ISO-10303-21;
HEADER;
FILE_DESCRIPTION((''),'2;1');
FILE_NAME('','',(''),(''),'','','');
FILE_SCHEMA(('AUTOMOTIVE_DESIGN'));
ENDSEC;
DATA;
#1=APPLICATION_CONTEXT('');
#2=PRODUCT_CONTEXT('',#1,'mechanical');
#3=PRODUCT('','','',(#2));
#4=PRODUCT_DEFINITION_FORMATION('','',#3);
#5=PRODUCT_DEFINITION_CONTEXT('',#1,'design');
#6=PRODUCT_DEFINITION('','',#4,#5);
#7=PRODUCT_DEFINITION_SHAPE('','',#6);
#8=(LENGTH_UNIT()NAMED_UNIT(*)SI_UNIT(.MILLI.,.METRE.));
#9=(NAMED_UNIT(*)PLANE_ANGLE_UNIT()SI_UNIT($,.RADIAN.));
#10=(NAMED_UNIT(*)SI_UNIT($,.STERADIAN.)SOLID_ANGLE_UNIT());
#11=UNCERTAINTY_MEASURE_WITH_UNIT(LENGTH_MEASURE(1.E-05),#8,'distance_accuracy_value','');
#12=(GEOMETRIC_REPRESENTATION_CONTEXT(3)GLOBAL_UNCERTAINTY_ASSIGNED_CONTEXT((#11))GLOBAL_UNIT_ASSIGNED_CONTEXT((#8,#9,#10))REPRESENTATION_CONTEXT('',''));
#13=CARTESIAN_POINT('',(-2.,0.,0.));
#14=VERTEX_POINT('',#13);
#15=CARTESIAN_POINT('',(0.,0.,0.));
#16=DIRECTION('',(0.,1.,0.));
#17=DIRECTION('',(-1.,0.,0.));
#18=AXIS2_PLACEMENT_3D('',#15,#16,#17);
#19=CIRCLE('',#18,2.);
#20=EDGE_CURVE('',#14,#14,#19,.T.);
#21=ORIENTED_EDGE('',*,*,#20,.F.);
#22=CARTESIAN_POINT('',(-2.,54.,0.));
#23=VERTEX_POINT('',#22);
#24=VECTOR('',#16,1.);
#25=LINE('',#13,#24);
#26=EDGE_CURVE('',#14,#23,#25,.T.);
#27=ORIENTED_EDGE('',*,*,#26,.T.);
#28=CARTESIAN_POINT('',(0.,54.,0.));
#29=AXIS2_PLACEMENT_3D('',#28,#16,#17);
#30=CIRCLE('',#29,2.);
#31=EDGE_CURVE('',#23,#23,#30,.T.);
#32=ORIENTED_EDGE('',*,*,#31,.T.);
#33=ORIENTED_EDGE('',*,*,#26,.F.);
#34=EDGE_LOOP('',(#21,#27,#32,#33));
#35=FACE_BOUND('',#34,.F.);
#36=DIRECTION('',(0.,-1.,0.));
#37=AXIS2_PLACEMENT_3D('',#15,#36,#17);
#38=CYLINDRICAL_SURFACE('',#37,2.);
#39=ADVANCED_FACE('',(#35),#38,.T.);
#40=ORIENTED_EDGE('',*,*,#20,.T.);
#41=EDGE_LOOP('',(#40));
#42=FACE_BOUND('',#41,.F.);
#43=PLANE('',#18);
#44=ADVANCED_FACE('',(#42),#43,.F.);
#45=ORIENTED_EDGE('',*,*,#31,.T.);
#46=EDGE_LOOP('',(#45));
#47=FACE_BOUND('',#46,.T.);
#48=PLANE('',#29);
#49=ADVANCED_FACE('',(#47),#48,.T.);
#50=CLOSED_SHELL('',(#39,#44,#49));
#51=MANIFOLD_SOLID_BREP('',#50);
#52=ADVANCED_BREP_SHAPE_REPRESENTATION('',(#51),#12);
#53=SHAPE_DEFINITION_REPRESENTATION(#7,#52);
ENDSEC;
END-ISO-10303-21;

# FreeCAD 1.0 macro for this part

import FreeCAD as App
import Part
import Sketcher

V = App.Vector

doc = App.newDocument("Part")
body = doc.addObject("PartDesign::Body", "Body")

# Sketch on XZ plane
sketch1 = body.newObject("Sketcher::SketchObject", "Sketch")
sketch1.AttachmentSupport = (doc.getObject("XZ_Plane"), [""])
sketch1.MapMode = "FlatFace"
sketch1.addGeometry(Part.Circle(V(0, 0, 0), V(0, 0, 1), 2), False)
sketch1.addConstraint([
    Sketcher.Constraint("Coincident", 0, 3, -1, 1),
    Sketcher.Constraint("Diameter", 0, 4.0),
])
pad1 = body.newObject("PartDesign::Pad", "Pad")
pad1.Profile = sketch1
pad1.Length = 54
pad1.Reversed = True

doc.recompute()
